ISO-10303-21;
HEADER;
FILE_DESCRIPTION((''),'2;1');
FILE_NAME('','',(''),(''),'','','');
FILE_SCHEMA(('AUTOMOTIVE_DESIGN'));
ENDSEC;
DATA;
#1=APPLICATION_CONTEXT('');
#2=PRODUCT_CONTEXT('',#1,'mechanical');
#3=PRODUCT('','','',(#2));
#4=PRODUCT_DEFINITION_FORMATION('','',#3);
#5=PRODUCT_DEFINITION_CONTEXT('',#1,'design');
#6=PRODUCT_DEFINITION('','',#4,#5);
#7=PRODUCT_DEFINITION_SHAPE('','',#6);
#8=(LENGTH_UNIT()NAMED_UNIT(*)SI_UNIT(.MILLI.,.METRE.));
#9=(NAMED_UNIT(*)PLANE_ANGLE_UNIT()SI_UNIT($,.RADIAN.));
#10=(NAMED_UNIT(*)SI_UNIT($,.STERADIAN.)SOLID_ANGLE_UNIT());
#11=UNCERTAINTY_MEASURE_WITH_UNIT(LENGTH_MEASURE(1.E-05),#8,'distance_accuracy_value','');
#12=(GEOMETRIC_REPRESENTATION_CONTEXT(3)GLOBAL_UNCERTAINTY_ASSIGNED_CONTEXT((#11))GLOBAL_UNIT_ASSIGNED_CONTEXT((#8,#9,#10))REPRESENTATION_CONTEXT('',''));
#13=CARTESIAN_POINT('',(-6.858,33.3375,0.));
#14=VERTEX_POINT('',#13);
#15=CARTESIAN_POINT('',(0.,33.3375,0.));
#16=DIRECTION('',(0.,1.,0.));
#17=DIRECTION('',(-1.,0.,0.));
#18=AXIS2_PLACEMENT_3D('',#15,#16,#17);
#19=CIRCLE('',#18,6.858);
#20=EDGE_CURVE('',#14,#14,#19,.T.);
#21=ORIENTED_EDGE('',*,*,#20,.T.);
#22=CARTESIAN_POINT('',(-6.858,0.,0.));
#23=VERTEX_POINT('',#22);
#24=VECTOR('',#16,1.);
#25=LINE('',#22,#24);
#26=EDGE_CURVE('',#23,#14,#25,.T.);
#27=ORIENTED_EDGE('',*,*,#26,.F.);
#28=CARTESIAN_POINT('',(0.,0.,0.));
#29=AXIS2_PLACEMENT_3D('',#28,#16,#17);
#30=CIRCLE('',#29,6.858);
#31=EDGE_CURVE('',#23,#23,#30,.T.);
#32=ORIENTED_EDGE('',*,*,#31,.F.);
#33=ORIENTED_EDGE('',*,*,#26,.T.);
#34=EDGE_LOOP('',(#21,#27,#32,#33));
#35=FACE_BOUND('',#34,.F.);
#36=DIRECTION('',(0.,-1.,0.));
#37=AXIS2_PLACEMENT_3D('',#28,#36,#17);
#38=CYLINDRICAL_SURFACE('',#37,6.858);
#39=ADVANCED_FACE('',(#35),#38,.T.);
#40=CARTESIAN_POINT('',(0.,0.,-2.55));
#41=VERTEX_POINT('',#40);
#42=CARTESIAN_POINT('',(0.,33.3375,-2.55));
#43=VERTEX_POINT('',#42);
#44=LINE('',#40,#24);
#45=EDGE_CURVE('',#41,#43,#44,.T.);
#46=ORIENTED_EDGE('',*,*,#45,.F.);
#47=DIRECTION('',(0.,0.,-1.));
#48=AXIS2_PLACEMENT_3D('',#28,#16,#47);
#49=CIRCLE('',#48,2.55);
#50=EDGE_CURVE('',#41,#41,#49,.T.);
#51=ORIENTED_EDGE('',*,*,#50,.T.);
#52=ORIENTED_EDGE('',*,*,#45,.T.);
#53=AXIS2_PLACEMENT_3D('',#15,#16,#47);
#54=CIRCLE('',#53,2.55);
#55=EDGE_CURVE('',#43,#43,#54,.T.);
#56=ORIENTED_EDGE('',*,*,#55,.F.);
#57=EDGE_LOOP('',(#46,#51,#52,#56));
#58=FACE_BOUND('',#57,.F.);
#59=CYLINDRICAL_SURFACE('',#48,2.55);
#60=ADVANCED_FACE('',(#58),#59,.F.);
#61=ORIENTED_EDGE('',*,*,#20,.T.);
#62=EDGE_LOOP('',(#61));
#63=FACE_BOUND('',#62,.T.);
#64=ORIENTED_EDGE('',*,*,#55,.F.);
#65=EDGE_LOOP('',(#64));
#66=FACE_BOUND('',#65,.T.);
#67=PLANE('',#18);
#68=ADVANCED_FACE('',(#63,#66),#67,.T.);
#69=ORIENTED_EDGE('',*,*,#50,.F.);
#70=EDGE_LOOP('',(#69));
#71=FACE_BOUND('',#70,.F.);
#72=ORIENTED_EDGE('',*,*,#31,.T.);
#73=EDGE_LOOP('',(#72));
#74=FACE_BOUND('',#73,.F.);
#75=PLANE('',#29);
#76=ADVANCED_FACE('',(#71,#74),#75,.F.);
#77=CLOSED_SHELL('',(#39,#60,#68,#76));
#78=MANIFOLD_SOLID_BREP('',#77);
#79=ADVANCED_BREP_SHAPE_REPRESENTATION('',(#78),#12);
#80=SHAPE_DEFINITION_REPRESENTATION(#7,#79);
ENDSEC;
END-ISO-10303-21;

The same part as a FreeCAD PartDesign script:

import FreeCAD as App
import Part
import Sketcher

V = App.Vector
Q = App.Units.Quantity

doc = App.newDocument("Part")
body = doc.addObject("PartDesign::Body", "Body")

sketch1 = body.newObject("Sketcher::SketchObject", "Sketch")
sketch1.AttachmentSupport = (doc.getObject("XZ_Plane"), [""])
sketch1.MapMode = "FlatFace"
sketch1.addGeometry(Part.Circle(V(0, 0, 0), V(0, 0, 1), 7), False)
sketch1.addConstraint(Sketcher.Constraint("Coincident", 0, 3, -1, 1))
sketch1.addConstraint(Sketcher.Constraint("Diameter", 0, Q("0.54 in")))
pad1 = body.newObject("PartDesign::Pad", "Pad")
pad1.Profile = sketch1
pad1.Length = Q("1.3125 in")
pad1.Reversed = True

sketch2 = body.newObject("Sketcher::SketchObject", "Sketch001")
sketch2.AttachmentSupport = (doc.getObject("XZ_Plane"), [""])
sketch2.MapMode = "FlatFace"
sketch2.addGeometry(Part.Circle(V(0, 0, 0), V(0, 0, 1), 2.5), False)
sketch2.addConstraint(Sketcher.Constraint("Coincident", 0, 3, -1, 1))
sketch2.addConstraint(Sketcher.Constraint("Diameter", 0, Q("5.1 mm")))
doc.recompute()
hole = body.newObject("PartDesign::Hole", "Hole")
hole.Profile = sketch2
hole.ThreadType = "None"
hole.Diameter = 5.1
hole.DepthType = "ThroughAll"

doc.recompute()
